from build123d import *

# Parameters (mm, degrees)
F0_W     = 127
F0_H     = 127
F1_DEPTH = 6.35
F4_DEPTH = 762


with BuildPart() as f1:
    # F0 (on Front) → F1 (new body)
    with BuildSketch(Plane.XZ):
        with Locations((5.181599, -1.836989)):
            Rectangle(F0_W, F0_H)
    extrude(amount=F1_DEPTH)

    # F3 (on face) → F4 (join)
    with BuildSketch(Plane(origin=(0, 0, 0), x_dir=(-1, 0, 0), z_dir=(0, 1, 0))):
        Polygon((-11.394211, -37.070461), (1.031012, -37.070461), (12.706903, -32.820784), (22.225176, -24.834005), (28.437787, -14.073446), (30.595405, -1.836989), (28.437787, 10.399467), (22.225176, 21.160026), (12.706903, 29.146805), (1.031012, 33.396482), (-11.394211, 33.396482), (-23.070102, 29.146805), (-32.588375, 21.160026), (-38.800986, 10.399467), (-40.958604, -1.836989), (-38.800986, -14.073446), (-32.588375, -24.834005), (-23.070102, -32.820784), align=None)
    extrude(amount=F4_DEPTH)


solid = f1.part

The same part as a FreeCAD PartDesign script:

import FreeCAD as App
import Part
import Sketcher
from FreeCAD import Vector
Q = App.Units.Quantity


def add_polygon(sketch, points):
    """Adds a closed chain of lines whose ends are joined by coincident constraints."""
    first, n = sketch.GeometryCount, len(points)
    for a, b in zip(points, points[1:] + points[:1]):
        sketch.addGeometry(Part.LineSegment(App.Vector(*a, 0), App.Vector(*b, 0)), False)
    for i in range(n):
        sketch.addConstraint(Sketcher.Constraint("Coincident", first + i, 2, first + (i + 1) % n, 1))

doc = App.newDocument("Part")
body = doc.addObject("PartDesign::Body", "Body")

# Sketch on XZ plane
sketch1 = body.newObject("Sketcher::SketchObject", "Sketch")
sketch1.AttachmentSupport = (doc.getObject("XZ_Plane"), [""])
sketch1.MapMode = "FlatFace"
add_polygon(sketch1, [(-58, 62), (-58, -65), (69, -65), (69, 62)])  # lines 0-3
sketch1.addConstraint([
    Sketcher.Constraint("Vertical", 0),
    Sketcher.Constraint("Horizontal", 1),
    Sketcher.Constraint("Vertical", 2),
    Sketcher.Constraint("Horizontal", 3),
    Sketcher.Constraint("Equal", 3, 0),
    Sketcher.Constraint("DistanceX", 1, 1, 1, 2, Q("5 in")),
    Sketcher.Constraint("DistanceX", 0, 2, -1, 1, Q("2.296 in")),
    Sketcher.Constraint("DistanceY", 0, 2, -1, 1, 65.336989),
])
pad1 = body.newObject("PartDesign::Pad", "Pad")
pad1.Profile = sketch1
pad1.Length = Q("0.25 in")

# Sketch on XZ plane
sketch2 = body.newObject("Sketcher::SketchObject", "Sketch001")
sketch2.AttachmentSupport = (doc.getObject("XZ_Plane"), [""])
sketch2.MapMode = "FlatFace"
add_polygon(sketch2, [(11, -37), (-1, -37), (-13, -33), (-22, -25), (-28, -14), (-31, -2), (-28, 10), (-22, 21), (-13, 29), (-1, 33), (11, 33), (23, 29), (33, 21), (39, 10), (41, -2), (39, -14), (33, -25), (23, -33)])  # lines 0-17
sketch2.addConstraint([
    Sketcher.Constraint("Horizontal", 0),
    Sketcher.Constraint("Horizontal", 9),
    Sketcher.Constraint("Parallel", 1, 10),
    Sketcher.Constraint("Parallel", 2, 11),
    Sketcher.Constraint("Parallel", 3, 12),
    Sketcher.Constraint("Parallel", 4, 13),
    Sketcher.Constraint("Parallel", 5, 14),
    Sketcher.Constraint("Parallel", 6, 15),
    Sketcher.Constraint("Parallel", 7, 16),
    Sketcher.Constraint("Parallel", 8, 17),
    Sketcher.Constraint("Horizontal", 7, 2, 10, 2),
    Sketcher.Constraint("Horizontal", 6, 2, 11, 2),
    Sketcher.Constraint("Horizontal", 5, 2, 12, 2),
    Sketcher.Constraint("Horizontal", 4, 2, 13, 2),
    Sketcher.Constraint("Horizontal", 3, 2, 14, 2),
    Sketcher.Constraint("Horizontal", 2, 2, 15, 2),
    Sketcher.Constraint("Horizontal", 1, 2, 16, 2),
    Sketcher.Constraint("Vertical", 3, 2, 5, 2),
    Sketcher.Constraint("Vertical", 2, 2, 6, 2),
    Sketcher.Constraint("Vertical", 1, 2, 7, 2),
    Sketcher.Constraint("Vertical", 0, 2, 8, 2),
    Sketcher.Constraint("Vertical", 12, 2, 14, 2),
    Sketcher.Constraint("Vertical", 11, 2, 15, 2),
    Sketcher.Constraint("Vertical", 10, 2, 16, 2),
    Sketcher.Constraint("Vertical", 9, 2, 17, 2),
    Sketcher.Constraint("Equal", 1, 2),
    Sketcher.Constraint("Equal", 2, 3),
    Sketcher.Constraint("Equal", 3, 4),
    Sketcher.Constraint("Angle", 1, Q("159.999999 deg")),
    Sketcher.Constraint("Angle", 2, Q("140.000001 deg")),
    Sketcher.Constraint("Angle", 3, Q("119.999997 deg")),
    Sketcher.Constraint("Angle", 4, Q("100.000002 deg")),
    Sketcher.Constraint("DistanceX", -1, 1, 10, 2, 23.070102),
    Sketcher.Constraint("DistanceX", 4, 2, 1, 2, 17.888502),
    Sketcher.Constraint("DistanceX", 0, 2, 0, 1, 12.425223),
    Sketcher.Constraint("DistanceY", 0, 2, -1, 1, 37.070461),
])
pad2 = body.newObject("PartDesign::Pad", "Pad001")
pad2.Profile = sketch2
pad2.Length = Q("30 in")
pad2.Reversed = True

doc.recompute()
